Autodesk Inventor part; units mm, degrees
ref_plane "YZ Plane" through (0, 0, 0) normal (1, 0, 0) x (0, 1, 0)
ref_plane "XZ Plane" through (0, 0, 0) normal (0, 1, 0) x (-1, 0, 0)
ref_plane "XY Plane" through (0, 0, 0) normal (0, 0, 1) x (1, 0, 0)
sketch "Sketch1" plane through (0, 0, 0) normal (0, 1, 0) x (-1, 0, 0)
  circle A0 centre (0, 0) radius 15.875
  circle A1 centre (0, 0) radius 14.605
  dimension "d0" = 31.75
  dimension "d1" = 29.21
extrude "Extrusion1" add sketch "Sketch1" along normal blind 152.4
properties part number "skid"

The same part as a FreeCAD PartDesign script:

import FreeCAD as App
import Part
import Sketcher

V = App.Vector
Q = App.Units.Quantity

doc = App.newDocument("Part")
body = doc.addObject("PartDesign::Body", "Body")

sketch1 = doc.addObject("Sketcher::SketchObject", "Sketch")
body.addObject(sketch1)
sketch1.AttachmentSupport = (doc.XZ_Plane, [""])
sketch1.MapMode = "FlatFace"
sketch1.addGeometry(Part.Circle(V(0, 0, 0), V(0, 0, 1), 16), False)
sketch1.addGeometry(Part.Circle(V(0, 0, 0), V(0, 0, 1), 15), False)
sketch1.addConstraint(Sketcher.Constraint("Coincident", 0, 3, -1, 1))
sketch1.addConstraint(Sketcher.Constraint("Coincident", 1, 3, -1, 1))
sketch1.addConstraint(Sketcher.Constraint("Diameter", 0, Q("1.25 in")))
sketch1.addConstraint(Sketcher.Constraint("Diameter", 1, Q("1.15 in")))
pad1 = doc.addObject("PartDesign::Pad", "Pad")
body.addObject(pad1)
pad1.Profile = sketch1
pad1.Length = Q("6 in")
pad1.Reversed = True

doc.recompute()
